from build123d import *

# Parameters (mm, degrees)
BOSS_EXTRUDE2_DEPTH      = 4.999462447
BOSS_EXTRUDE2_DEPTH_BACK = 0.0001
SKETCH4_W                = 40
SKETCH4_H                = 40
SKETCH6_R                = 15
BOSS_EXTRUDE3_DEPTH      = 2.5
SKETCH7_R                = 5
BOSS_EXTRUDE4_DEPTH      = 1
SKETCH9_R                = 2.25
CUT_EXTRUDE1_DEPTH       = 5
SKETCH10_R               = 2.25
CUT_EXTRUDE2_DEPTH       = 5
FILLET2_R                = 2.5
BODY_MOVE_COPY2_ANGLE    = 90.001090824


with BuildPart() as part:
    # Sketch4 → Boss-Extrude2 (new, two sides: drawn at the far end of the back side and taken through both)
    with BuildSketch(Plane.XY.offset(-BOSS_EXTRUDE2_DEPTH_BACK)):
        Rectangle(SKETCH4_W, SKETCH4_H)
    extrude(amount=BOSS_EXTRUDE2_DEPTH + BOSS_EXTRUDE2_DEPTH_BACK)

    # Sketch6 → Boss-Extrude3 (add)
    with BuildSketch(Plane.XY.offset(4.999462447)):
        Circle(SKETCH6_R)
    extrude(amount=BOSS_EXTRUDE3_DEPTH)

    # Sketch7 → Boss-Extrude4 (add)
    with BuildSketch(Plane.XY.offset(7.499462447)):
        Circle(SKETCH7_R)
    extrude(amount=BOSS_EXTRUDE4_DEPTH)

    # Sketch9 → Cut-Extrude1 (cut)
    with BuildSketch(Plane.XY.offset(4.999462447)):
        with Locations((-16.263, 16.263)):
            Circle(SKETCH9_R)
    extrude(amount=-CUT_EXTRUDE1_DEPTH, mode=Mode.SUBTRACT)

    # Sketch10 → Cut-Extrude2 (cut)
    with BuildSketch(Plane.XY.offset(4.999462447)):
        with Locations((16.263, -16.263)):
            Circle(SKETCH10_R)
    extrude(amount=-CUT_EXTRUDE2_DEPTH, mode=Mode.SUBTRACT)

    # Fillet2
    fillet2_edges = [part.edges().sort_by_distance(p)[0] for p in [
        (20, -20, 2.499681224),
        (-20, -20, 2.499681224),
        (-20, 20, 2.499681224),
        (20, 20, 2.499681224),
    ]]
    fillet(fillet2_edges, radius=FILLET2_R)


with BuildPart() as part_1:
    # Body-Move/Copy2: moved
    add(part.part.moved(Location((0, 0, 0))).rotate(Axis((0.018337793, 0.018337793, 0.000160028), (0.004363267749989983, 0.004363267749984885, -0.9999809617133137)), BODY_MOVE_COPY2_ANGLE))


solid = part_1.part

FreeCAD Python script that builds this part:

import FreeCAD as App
import Part
import Sketcher

V = App.Vector
Q = App.Units.Quantity


def edges_at(feature, points):
    """Names of the edges that pass closest to the given points."""
    edges = feature.Shape.Edges
    near = lambda p: min(range(len(edges)), key=lambda i: edges[i].distToShape(Part.Vertex(*p))[0])
    return sorted({f"Edge{near(p) + 1}" for p in points})

doc = App.newDocument("Part")
body = doc.addObject("PartDesign::Body", "Body")

# Sketch on XY plane
sketch1 = doc.addObject("Sketcher::SketchObject", "Sketch")
body.addObject(sketch1)
sketch1.AttachmentSupport = (doc.XY_Plane, [""])
sketch1.MapMode = "FlatFace"
sketch1.addGeometry(Part.LineSegment(V(-20, 20, 0), V(-20, -20, 0)), False)
sketch1.addGeometry(Part.LineSegment(V(-20, -20, 0), V(20, -20, 0)), False)
sketch1.addGeometry(Part.LineSegment(V(20, -20, 0), V(20, 20, 0)), False)
sketch1.addGeometry(Part.LineSegment(V(20, 20, 0), V(-20, 20, 0)), False)
sketch1.addConstraint(Sketcher.Constraint("Coincident", 0, 2, 1, 1))
sketch1.addConstraint(Sketcher.Constraint("Coincident", 1, 2, 2, 1))
sketch1.addConstraint(Sketcher.Constraint("Coincident", 2, 2, 3, 1))
sketch1.addConstraint(Sketcher.Constraint("Coincident", 3, 2, 0, 1))
sketch1.addConstraint(Sketcher.Constraint("Vertical", 0))
sketch1.addConstraint(Sketcher.Constraint("Horizontal", 1))
sketch1.addConstraint(Sketcher.Constraint("Vertical", 2))
sketch1.addConstraint(Sketcher.Constraint("Horizontal", 3))
sketch1.addConstraint(Sketcher.Constraint("Symmetric", 0, 2, 2, 2, -1, 1))
sketch1.addConstraint(Sketcher.Constraint("Equal", 3, 0))
sketch1.addConstraint(Sketcher.Constraint("DistanceX", 1, 1, 1, 2, Q("40 mm")))
pad1 = doc.addObject("PartDesign::Pad", "Pad")
body.addObject(pad1)
pad1.Profile = sketch1
pad1.Type = "TwoLengths"
pad1.Length = 4.999462
pad1.Length2 = 0.0001

# Sketch on XY plane
sketch2 = doc.addObject("Sketcher::SketchObject", "Sketch001")
body.addObject(sketch2)
sketch2.AttachmentSupport = (doc.XY_Plane, [""])
sketch2.MapMode = "FlatFace"
sketch2.AttachmentOffset = App.Placement(V(0, 0, 4.999462), App.Rotation())
sketch2.addGeometry(Part.Circle(V(0, 0, 0), V(0, 0, 1), 15), False)
sketch2.addConstraint(Sketcher.Constraint("Coincident", 0, 3, -1, 1))
sketch2.addConstraint(Sketcher.Constraint("Diameter", 0, Q("30 mm")))
pad2 = doc.addObject("PartDesign::Pad", "Pad001")
body.addObject(pad2)
pad2.Profile = sketch2
pad2.Length = 2.5

# Sketch on XY plane
sketch3 = doc.addObject("Sketcher::SketchObject", "Sketch002")
body.addObject(sketch3)
sketch3.AttachmentSupport = (doc.XY_Plane, [""])
sketch3.MapMode = "FlatFace"
sketch3.AttachmentOffset = App.Placement(V(0, 0, 7.499462), App.Rotation())
sketch3.addGeometry(Part.Circle(V(0, 0, 0), V(0, 0, 1), 5), False)
sketch3.addConstraint(Sketcher.Constraint("Coincident", 0, 3, -1, 1))
sketch3.addConstraint(Sketcher.Constraint("Diameter", 0, Q("10 mm")))
pad3 = doc.addObject("PartDesign::Pad", "Pad002")
body.addObject(pad3)
pad3.Profile = sketch3
pad3.Length = 1

# Sketch on XY plane
sketch4 = doc.addObject("Sketcher::SketchObject", "Sketch003")
body.addObject(sketch4)
sketch4.AttachmentSupport = (doc.XY_Plane, [""])
sketch4.MapMode = "FlatFace"
sketch4.AttachmentOffset = App.Placement(V(0, 0, 4.999462), App.Rotation())
sketch4.addGeometry(Part.Circle(V(-16.3, 16.3, 0), V(0, 0, 1), 2.2), False)
sketch4.addConstraint(Sketcher.Constraint("Diameter", 0, Q("4.5 mm")))
sketch4.addConstraint(Sketcher.Constraint("DistanceX", 0, 3, -1, 1, Q("16.263 mm")))
sketch4.addConstraint(Sketcher.Constraint("DistanceY", -1, 1, 0, 3, Q("16.263 mm")))
pocket1 = doc.addObject("PartDesign::Pocket", "Pocket")
body.addObject(pocket1)
pocket1.Profile = sketch4
pocket1.Length = 5

# Sketch on XY plane
sketch5 = doc.addObject("Sketcher::SketchObject", "Sketch004")
body.addObject(sketch5)
sketch5.AttachmentSupport = (doc.XY_Plane, [""])
sketch5.MapMode = "FlatFace"
sketch5.AttachmentOffset = App.Placement(V(0, 0, 4.999462), App.Rotation())
sketch5.addGeometry(Part.Circle(V(16.3, -16.3, 0), V(0, 0, 1), 2.2), False)
sketch5.addConstraint(Sketcher.Constraint("Diameter", 0, Q("4.5 mm")))
sketch5.addConstraint(Sketcher.Constraint("DistanceX", -1, 1, 0, 3, Q("16.263 mm")))
sketch5.addConstraint(Sketcher.Constraint("DistanceY", 0, 3, -1, 1, Q("16.263 mm")))
pocket2 = doc.addObject("PartDesign::Pocket", "Pocket001")
body.addObject(pocket2)
pocket2.Profile = sketch5
pocket2.Length = 5
doc.recompute()

fillet = doc.addObject("PartDesign::Fillet", "Fillet")
body.addObject(fillet)
fillet.Base = (pocket2, edges_at(pocket2, [
    (20, -20, 2.5),
    (-20, -20, 2.5),
    (-20, 20, 2.5),
    (20, 20, 2.5),
]))
fillet.Radius = 2.5
body2 = doc.addObject("PartDesign::Body", "Body001")
doc.recompute()

body.Placement = App.Placement(V(0, 0.036676, 0.00016), App.Rotation(V(0.004363268, 0.004363268, -0.999980962), 90.001091))
boolean = doc.addObject("PartDesign::Boolean", "Boolean")
body2.addObject(boolean)
boolean.Type = "Fuse"
boolean.addObjects([body])

doc.recompute()
